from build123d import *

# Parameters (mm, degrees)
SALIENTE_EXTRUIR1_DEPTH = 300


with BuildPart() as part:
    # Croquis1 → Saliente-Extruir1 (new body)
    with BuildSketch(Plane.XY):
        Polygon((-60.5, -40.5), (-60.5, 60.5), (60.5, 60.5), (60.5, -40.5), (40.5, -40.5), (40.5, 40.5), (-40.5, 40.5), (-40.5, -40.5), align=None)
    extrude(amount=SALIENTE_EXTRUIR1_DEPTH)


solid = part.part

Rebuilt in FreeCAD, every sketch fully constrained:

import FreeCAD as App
import Part
import Sketcher

V = App.Vector


def add_polygon(sketch, points):
    """Adds a closed chain of lines whose ends are joined by coincident constraints."""
    first, n = sketch.GeometryCount, len(points)
    for a, b in zip(points, points[1:] + points[:1]):
        sketch.addGeometry(Part.LineSegment(App.Vector(*a, 0), App.Vector(*b, 0)), False)
    for i in range(n):
        sketch.addConstraint(Sketcher.Constraint("Coincident", first + i, 2, first + (i + 1) % n, 1))

doc = App.newDocument("Part")
body = doc.addObject("PartDesign::Body", "Body")

sketch1 = body.newObject("Sketcher::SketchObject", "Sketch")
sketch1.AttachmentSupport = (doc.getObject("XY_Plane"), [""])
sketch1.MapMode = "FlatFace"
add_polygon(sketch1, [(-60, 60), (-60, -40), (-40, -40), (-40, 40), (40, 40), (40, -40), (60, -40), (60, 60)])
sketch1.addConstraint([
    Sketcher.Constraint("Vertical", 0),
    Sketcher.Constraint("Horizontal", 1),
    Sketcher.Constraint("Vertical", 2),
    Sketcher.Constraint("Horizontal", 3),
    Sketcher.Constraint("Vertical", 4),
    Sketcher.Constraint("Horizontal", 5),
    Sketcher.Constraint("Vertical", 6),
    Sketcher.Constraint("Horizontal", 7),
    Sketcher.Constraint("Symmetric", 1, 2, 3, 2, -1, 1),
    Sketcher.Constraint("Symmetric", 0, 2, 5, 2, -2),
    Sketcher.Constraint("Equal", 3, 2),
    Sketcher.Constraint("DistanceX", 1, 1, 1, 2, 20.0),
    Sketcher.Constraint("DistanceX", 3, 1, 3, 2, 81.0),
    Sketcher.Constraint("DistanceY", 0, 2, 0, 1, 101.0),
])
pad1 = body.newObject("PartDesign::Pad", "Pad")
pad1.Profile = sketch1
pad1.Length = 300

doc.recompute()
